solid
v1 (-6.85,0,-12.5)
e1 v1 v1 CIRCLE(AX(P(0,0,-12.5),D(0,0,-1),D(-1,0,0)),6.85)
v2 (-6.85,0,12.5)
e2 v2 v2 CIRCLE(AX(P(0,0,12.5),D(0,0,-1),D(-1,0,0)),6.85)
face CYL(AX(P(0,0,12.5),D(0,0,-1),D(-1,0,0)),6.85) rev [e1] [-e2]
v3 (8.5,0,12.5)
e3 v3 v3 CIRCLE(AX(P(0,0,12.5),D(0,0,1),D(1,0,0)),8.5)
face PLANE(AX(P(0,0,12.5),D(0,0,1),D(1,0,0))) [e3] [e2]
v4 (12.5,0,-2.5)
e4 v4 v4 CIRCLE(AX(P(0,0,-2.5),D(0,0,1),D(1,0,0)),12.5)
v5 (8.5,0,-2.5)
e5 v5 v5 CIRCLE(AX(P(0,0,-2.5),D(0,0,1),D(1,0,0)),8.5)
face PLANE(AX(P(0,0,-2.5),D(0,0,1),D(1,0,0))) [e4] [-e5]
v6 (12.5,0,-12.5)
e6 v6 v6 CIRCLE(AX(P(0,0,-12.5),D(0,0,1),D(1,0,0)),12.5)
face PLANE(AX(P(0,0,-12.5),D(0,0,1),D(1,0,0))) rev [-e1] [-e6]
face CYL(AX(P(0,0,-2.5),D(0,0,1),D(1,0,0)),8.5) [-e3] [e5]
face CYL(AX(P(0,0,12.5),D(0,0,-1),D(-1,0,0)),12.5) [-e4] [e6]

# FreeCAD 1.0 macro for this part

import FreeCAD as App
import Part
import Sketcher


def add_polygon(sketch, points):
    """Adds a closed chain of lines whose ends are joined by coincident constraints."""
    first, n = sketch.GeometryCount, len(points)
    for a, b in zip(points, points[1:] + points[:1]):
        sketch.addGeometry(Part.LineSegment(App.Vector(*a, 0), App.Vector(*b, 0)), False)
    for i in range(n):
        sketch.addConstraint(Sketcher.Constraint("Coincident", first + i, 2, first + (i + 1) % n, 1))

doc = App.newDocument("Part")
body = doc.addObject("PartDesign::Body", "Body")

# Sketch on XY plane
sketch1 = body.newObject("Sketcher::SketchObject", "Sketch")
sketch1.AttachmentSupport = (doc.getObject("XY_Plane"), [""])
sketch1.MapMode = "FlatFace"
sketch1.addGeometry(Part.Circle(App.Vector(0, 0, 0), App.Vector(0, 0, 1), 12), False)
sketch1.addConstraint([
    Sketcher.Constraint("Coincident", 0, 3, -1, 1),
    Sketcher.Constraint("Diameter", 0, 25.0),
])
pad1 = body.newObject("PartDesign::Pad", "Pad")
pad1.Profile = sketch1
pad1.Length = 25
pad1.Midplane = True

# Sketch on XY plane
sketch2 = body.newObject("Sketcher::SketchObject", "Sketch001")
sketch2.AttachmentSupport = (doc.getObject("XY_Plane"), [""])
sketch2.MapMode = "FlatFace"
sketch2.AttachmentOffset = App.Placement(App.Vector(0, 0, -12.5), App.Rotation())
sketch2.addGeometry(Part.Circle(App.Vector(0, 0, 0), App.Vector(0, 0, 1), 7), False)
sketch2.addConstraint([
    Sketcher.Constraint("Coincident", 0, 3, -1, 1),
    Sketcher.Constraint("Diameter", 0, 13.7),
])
pocket1 = body.newObject("PartDesign::Pocket", "Pocket")
pocket1.Profile = sketch2
pocket1.Length = 25
pocket1.Reversed = True

# Sketch on XY plane
sketch3 = body.newObject("Sketcher::SketchObject", "Sketch002")
sketch3.AttachmentSupport = (doc.getObject("XY_Plane"), [""])
sketch3.MapMode = "FlatFace"
sketch3.AttachmentOffset = App.Placement(App.Vector(0, 0, 12.5), App.Rotation())
add_polygon(sketch3, [(-18, 18), (-18, -18), (18, -18), (18, 18)])  # lines 0-3
sketch3.addGeometry(Part.Circle(App.Vector(0, 0, 0), App.Vector(0, 0, 1), 8), False)  # 4
sketch3.addConstraint([
    Sketcher.Constraint("Vertical", 0),
    Sketcher.Constraint("Horizontal", 1),
    Sketcher.Constraint("Vertical", 2),
    Sketcher.Constraint("Horizontal", 3),
    Sketcher.Constraint("Coincident", 4, 3, -1, 1),
    Sketcher.Constraint("Symmetric", 0, 2, 2, 2, -1, 1),
    Sketcher.Constraint("Equal", 3, 0),
    Sketcher.Constraint("Diameter", 4, 17.0),
    Sketcher.Constraint("DistanceX", 1, 1, 1, 2, 35.66),
])
pocket2 = body.newObject("PartDesign::Pocket", "Pocket001")
pocket2.Profile = sketch3
pocket2.Length = 15

doc.recompute()
